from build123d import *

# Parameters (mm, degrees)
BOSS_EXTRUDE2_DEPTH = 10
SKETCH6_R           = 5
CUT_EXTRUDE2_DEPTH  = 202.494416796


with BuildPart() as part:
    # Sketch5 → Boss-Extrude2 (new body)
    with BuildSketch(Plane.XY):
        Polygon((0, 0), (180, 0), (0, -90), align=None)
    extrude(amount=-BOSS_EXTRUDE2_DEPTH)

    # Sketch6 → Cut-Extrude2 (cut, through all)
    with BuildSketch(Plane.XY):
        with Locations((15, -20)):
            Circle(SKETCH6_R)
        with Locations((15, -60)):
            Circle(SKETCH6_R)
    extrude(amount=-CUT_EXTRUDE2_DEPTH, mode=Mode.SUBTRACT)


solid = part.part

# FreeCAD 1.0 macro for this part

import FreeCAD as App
import Part
import Sketcher
from FreeCAD import Vector


def add_polygon(sketch, points):
    """Adds a closed chain of lines whose ends are joined by coincident constraints."""
    first, n = sketch.GeometryCount, len(points)
    for a, b in zip(points, points[1:] + points[:1]):
        sketch.addGeometry(Part.LineSegment(App.Vector(*a, 0), App.Vector(*b, 0)), False)
    for i in range(n):
        sketch.addConstraint(Sketcher.Constraint("Coincident", first + i, 2, first + (i + 1) % n, 1))

doc = App.newDocument("Part")
params = doc.addObject("Spreadsheet::Sheet", "Params")
for row, (alias, value) in enumerate([
    ("sketch1_width", "180 mm"),
    ("sketch1_height", "90 mm"),
    ("pad1_length", "10 mm"),
    ("sketch2_diameter", "10 mm"),
], start=1):
    params.set(f"A{row}", alias)
    params.set(f"B{row}", "=" + value)
    params.setAlias(f"B{row}", alias)

body = doc.addObject("PartDesign::Body", "Body")

sketch1 = body.newObject("Sketcher::SketchObject", "Sketch")
sketch1.AttachmentSupport = (doc.getObject("XY_Plane"), [""])
sketch1.MapMode = "FlatFace"
add_polygon(sketch1, [(180, 0), (0, 0), (0, -90)])
sketch1.addConstraint([
    Sketcher.Constraint("Horizontal", 0),
    Sketcher.Constraint("Vertical", 1),
    Sketcher.Constraint("Coincident", 0, 2, -1, 1),
    Sketcher.Constraint("DistanceX", 0, 2, 0, 1, 180.0),
    Sketcher.Constraint("DistanceY", 1, 2, 1, 1, 90.0),
])
sketch1.setExpression("Constraints[6]", "Params.sketch1_width")
sketch1.setExpression("Constraints[7]", "Params.sketch1_height")
pad1 = body.newObject("PartDesign::Pad", "Pad")
pad1.Profile = sketch1
pad1.setExpression("Length", "Params.pad1_length")
pad1.Reversed = True

sketch2 = body.newObject("Sketcher::SketchObject", "Sketch001")
sketch2.AttachmentSupport = (doc.getObject("XY_Plane"), [""])
sketch2.MapMode = "FlatFace"
sketch2.addGeometry([
    Part.Circle(Vector(15, -20, 0), Vector(0, 0, 1), 5),
    Part.Circle(Vector(15, -60, 0), Vector(0, 0, 1), 5),
], False)
sketch2.addConstraint([
    Sketcher.Constraint("Equal", 0, 1),
    Sketcher.Constraint("Vertical", 0, 3, 1, 3),
    Sketcher.Constraint("Diameter", 0, 10.0),
    Sketcher.Constraint("DistanceX", -1, 1, 0, 3, 15.0),
    Sketcher.Constraint("DistanceY", 0, 3, -1, 1, 20.0),
    Sketcher.Constraint("DistanceY", 1, 3, -1, 1, 60.0),
])
sketch2.setExpression("Constraints[2]", "Params.sketch2_diameter")
pocket1 = body.newObject("PartDesign::Pocket", "Pocket")
pocket1.Profile = sketch2
pocket1.Type = "ThroughAll"

doc.recompute()
